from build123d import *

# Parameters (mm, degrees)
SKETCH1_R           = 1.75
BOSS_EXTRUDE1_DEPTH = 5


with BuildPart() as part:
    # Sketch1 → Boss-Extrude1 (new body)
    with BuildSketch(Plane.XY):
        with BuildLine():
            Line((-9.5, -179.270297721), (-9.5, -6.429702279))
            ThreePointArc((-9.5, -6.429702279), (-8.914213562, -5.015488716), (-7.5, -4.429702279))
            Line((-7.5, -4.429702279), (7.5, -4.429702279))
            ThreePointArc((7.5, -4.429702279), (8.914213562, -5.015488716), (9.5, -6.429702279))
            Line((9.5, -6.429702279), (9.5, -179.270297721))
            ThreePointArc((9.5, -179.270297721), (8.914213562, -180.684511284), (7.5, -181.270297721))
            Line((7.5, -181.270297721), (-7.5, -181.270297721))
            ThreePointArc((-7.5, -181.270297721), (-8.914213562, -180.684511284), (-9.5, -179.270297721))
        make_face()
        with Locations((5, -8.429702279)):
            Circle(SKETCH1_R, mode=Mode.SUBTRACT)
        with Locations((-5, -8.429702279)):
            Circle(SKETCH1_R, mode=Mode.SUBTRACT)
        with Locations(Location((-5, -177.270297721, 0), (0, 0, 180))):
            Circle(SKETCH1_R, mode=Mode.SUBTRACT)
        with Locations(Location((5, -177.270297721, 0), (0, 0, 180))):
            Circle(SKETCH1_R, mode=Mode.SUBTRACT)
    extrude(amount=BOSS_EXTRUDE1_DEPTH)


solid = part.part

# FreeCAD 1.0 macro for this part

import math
import FreeCAD as App
import Part
import Sketcher

V = App.Vector
Q = App.Units.Quantity

doc = App.newDocument("Part")
params = doc.addObject("Spreadsheet::Sheet", "Params")
for row, (alias, value) in enumerate([
    ("sketch1_radius", "2 mm"),
    ("sketch1_diameter", "3.5 mm"),
    ("sketch1_width", "15 mm"),
    ("pad1_length", "5 mm"),
], start=1):
    params.set(f"A{row}", alias)
    params.set(f"B{row}", "=" + value)
    params.setAlias(f"B{row}", alias)

body = doc.addObject("PartDesign::Body", "Body")

sketch1 = body.newObject("Sketcher::SketchObject", "Sketch")
sketch1.AttachmentSupport = (doc.getObject("XY_Plane"), [""])
sketch1.MapMode = "FlatFace"
sketch1.addGeometry([
    Part.LineSegment(V(-9.5, -6.4, 0), V(-9.5, -179.3, 0)),
    Part.ArcOfCircle(Part.Circle(V(-7.5, -179.3, 0), V(0, 0, 1), 2), math.radians(180), math.radians(270)),
    Part.LineSegment(V(-7.5, -181.3, 0), V(7.5, -181.3, 0)),
    Part.ArcOfCircle(Part.Circle(V(7.5, -179.3, 0), V(0, 0, 1), 2), math.radians(-90), math.radians(0)),
    Part.LineSegment(V(9.5, -179.3, 0), V(9.5, -6.4, 0)),
    Part.ArcOfCircle(Part.Circle(V(7.5, -6.4, 0), V(0, 0, 1), 2), math.radians(0), math.radians(90)),
    Part.LineSegment(V(7.5, -4.4, 0), V(-7.5, -4.4, 0)),
    Part.ArcOfCircle(Part.Circle(V(-7.5, -6.4, 0), V(0, 0, 1), 2), math.radians(90), math.radians(180)),
    Part.Circle(V(5, -177.3, 0), V(0, 0, 1), 1.8),
    Part.Circle(V(-5, -177.3, 0), V(0, 0, 1), 1.8),
    Part.Circle(V(5, -8.4, 0), V(0, 0, 1), 1.8),
    Part.Circle(V(-5, -8.4, 0), V(0, 0, 1), 1.8),
], False)
sketch1.addConstraint([
    Sketcher.Constraint("Tangent", 0, 2, 1, 1),
    Sketcher.Constraint("Tangent", 1, 2, 2, 1),
    Sketcher.Constraint("Tangent", 2, 2, 3, 1),
    Sketcher.Constraint("Tangent", 3, 2, 4, 1),
    Sketcher.Constraint("Tangent", 4, 2, 5, 1),
    Sketcher.Constraint("Tangent", 5, 2, 6, 1),
    Sketcher.Constraint("Tangent", 6, 2, 7, 1),
    Sketcher.Constraint("Tangent", 7, 2, 0, 1),
    Sketcher.Constraint("Vertical", 0),
    Sketcher.Constraint("Horizontal", 2),
    Sketcher.Constraint("Vertical", 4),
    Sketcher.Constraint("Horizontal", 6),
    Sketcher.Constraint("Equal", 1, 3),
    Sketcher.Constraint("Equal", 3, 5),
    Sketcher.Constraint("Equal", 5, 7),
    Sketcher.Constraint("Equal", 8, 9),
    Sketcher.Constraint("Equal", 9, 10),
    Sketcher.Constraint("Equal", 10, 11),
    Sketcher.Constraint("Symmetric", 8, 3, 9, 3, -2),
    Sketcher.Constraint("Symmetric", 10, 3, 11, 3, -2),
    Sketcher.Constraint("Vertical", 8, 3, 10, 3),
    Sketcher.Constraint("Radius", 1, Q("2 mm")),
    Sketcher.Constraint("Diameter", 8, Q("3.5 mm")),
    Sketcher.Constraint("DistanceX", 2, 1, 2, 2, Q("15 mm")),
    Sketcher.Constraint("DistanceX", -1, 1, 8, 3, Q("5 mm")),
    Sketcher.Constraint("DistanceY", 3, 3, 8, 3, Q("2 mm")),
    Sketcher.Constraint("DistanceY", 10, 3, 5, 3, Q("2 mm")),
    Sketcher.Constraint("DistanceX", 1, 3, -1, 1, Q("7.5 mm")),
    Sketcher.Constraint("DistanceY", 0, 2, 0, 1, Q("172.840595 mm")),
    Sketcher.Constraint("DistanceY", 1, 3, -1, 1, Q("179.270298 mm")),
])
sketch1.setExpression("Constraints[21]", "Params.sketch1_radius")
sketch1.setExpression("Constraints[22]", "Params.sketch1_diameter")
sketch1.setExpression("Constraints[23]", "Params.sketch1_width")
pad1 = body.newObject("PartDesign::Pad", "Pad")
pad1.Profile = sketch1
pad1.setExpression("Length", "Params.pad1_length")

doc.recompute()
